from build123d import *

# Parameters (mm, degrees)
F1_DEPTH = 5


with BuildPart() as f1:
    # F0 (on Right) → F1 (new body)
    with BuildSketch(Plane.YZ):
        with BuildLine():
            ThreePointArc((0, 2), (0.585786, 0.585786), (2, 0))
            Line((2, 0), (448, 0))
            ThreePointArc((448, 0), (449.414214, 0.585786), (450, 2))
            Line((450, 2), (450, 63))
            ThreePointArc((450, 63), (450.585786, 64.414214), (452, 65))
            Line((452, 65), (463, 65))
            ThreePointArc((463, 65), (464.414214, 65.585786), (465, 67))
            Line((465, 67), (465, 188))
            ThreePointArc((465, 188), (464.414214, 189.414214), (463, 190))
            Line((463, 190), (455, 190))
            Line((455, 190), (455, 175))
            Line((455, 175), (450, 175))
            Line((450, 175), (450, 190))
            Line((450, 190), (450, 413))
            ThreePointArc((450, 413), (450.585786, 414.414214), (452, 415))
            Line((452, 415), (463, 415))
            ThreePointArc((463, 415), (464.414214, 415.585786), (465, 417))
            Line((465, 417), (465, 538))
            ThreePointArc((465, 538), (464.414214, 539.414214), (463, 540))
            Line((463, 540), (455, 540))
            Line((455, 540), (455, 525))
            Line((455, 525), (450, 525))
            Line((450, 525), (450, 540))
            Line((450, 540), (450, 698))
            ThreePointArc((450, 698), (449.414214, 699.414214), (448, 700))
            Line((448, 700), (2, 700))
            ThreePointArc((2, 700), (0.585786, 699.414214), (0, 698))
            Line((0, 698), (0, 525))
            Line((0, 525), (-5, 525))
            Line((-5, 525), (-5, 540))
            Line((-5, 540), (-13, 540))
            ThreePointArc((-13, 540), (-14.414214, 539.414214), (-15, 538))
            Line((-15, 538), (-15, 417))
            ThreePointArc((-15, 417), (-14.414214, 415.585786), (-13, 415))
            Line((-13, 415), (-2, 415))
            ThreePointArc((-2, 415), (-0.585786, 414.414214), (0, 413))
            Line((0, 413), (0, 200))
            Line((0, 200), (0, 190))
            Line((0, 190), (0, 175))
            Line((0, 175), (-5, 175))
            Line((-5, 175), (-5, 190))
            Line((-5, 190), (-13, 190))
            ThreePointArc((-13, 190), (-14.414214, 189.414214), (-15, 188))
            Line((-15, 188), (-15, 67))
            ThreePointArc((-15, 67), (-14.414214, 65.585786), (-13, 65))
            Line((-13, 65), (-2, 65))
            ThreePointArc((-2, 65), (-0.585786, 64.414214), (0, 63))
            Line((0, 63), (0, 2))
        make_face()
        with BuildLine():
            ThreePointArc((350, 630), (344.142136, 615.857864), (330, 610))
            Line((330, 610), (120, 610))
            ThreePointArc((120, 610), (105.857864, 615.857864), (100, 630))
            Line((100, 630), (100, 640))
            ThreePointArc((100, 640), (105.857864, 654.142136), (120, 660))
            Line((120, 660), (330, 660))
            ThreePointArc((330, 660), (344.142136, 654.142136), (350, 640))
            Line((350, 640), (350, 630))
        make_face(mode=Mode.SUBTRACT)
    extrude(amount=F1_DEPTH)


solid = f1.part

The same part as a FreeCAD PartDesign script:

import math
import FreeCAD as App
import Part
import Sketcher
from FreeCAD import Vector
Q = App.Units.Quantity

doc = App.newDocument("Part")
body = doc.addObject("PartDesign::Body", "Body")

# Sketch on YZ plane
sketch1 = body.newObject("Sketcher::SketchObject", "Sketch")
sketch1.AttachmentSupport = (doc.getObject("YZ_Plane"), [""])
sketch1.MapMode = "FlatFace"
sketch1.addGeometry([
    Part.ArcOfCircle(Part.Circle(Vector(2, 2, 0), Vector(0, 0, 1), 2), math.radians(180), math.radians(270)),  # 0
    Part.LineSegment(Vector(2, 0, 0), Vector(448, 0, 0)),  # 1
    Part.ArcOfCircle(Part.Circle(Vector(448, 2, 0), Vector(0, 0, 1), 2), math.radians(-90), math.radians(0)),  # 2
    Part.LineSegment(Vector(450, 2, 0), Vector(450, 63, 0)),  # 3
    Part.ArcOfCircle(Part.Circle(Vector(452, 63, 0), Vector(0, 0, 1), 2), math.radians(90), math.radians(180)),  # 4
    Part.LineSegment(Vector(452, 65, 0), Vector(463, 65, 0)),  # 5
    Part.ArcOfCircle(Part.Circle(Vector(463, 67, 0), Vector(0, 0, 1), 2), math.radians(-90), math.radians(0)),  # 6
    Part.LineSegment(Vector(465, 67, 0), Vector(465, 188, 0)),  # 7
    Part.ArcOfCircle(Part.Circle(Vector(463, 188, 0), Vector(0, 0, 1), 2), math.radians(0), math.radians(90)),  # 8
    Part.LineSegment(Vector(463, 190, 0), Vector(455, 190, 0)),  # 9
    Part.LineSegment(Vector(455, 190, 0), Vector(455, 175, 0)),  # 10
    Part.LineSegment(Vector(455, 175, 0), Vector(450, 175, 0)),  # 11
    Part.LineSegment(Vector(450, 175, 0), Vector(450, 413, 0)),  # 12
    Part.ArcOfCircle(Part.Circle(Vector(452, 413, 0), Vector(0, 0, 1), 2), math.radians(90), math.radians(180)),  # 13
    Part.LineSegment(Vector(452, 415, 0), Vector(463, 415, 0)),  # 14
    Part.ArcOfCircle(Part.Circle(Vector(463, 417, 0), Vector(0, 0, 1), 2), math.radians(-90), math.radians(0)),  # 15
    Part.LineSegment(Vector(465, 417, 0), Vector(465, 538, 0)),  # 16
    Part.ArcOfCircle(Part.Circle(Vector(463, 538, 0), Vector(0, 0, 1), 2), math.radians(0), math.radians(90)),  # 17
    Part.LineSegment(Vector(463, 540, 0), Vector(455, 540, 0)),  # 18
    Part.LineSegment(Vector(455, 540, 0), Vector(455, 525, 0)),  # 19
    Part.LineSegment(Vector(455, 525, 0), Vector(450, 525, 0)),  # 20
    Part.LineSegment(Vector(450, 525, 0), Vector(450, 698, 0)),  # 21
    Part.ArcOfCircle(Part.Circle(Vector(448, 698, 0), Vector(0, 0, 1), 2), math.radians(0), math.radians(90)),  # 22
    Part.LineSegment(Vector(448, 700, 0), Vector(2, 700, 0)),  # 23
    Part.ArcOfCircle(Part.Circle(Vector(2, 698, 0), Vector(0, 0, 1), 2), math.radians(90), math.radians(180)),  # 24
    Part.LineSegment(Vector(0, 698, 0), Vector(0, 525, 0)),  # 25
    Part.LineSegment(Vector(0, 525, 0), Vector(-5, 525, 0)),  # 26
    Part.LineSegment(Vector(-5, 525, 0), Vector(-5, 540, 0)),  # 27
    Part.LineSegment(Vector(-5, 540, 0), Vector(-13, 540, 0)),  # 28
    Part.ArcOfCircle(Part.Circle(Vector(-13, 538, 0), Vector(0, 0, 1), 2), math.radians(90), math.radians(180)),  # 29
    Part.LineSegment(Vector(-15, 538, 0), Vector(-15, 417, 0)),  # 30
    Part.ArcOfCircle(Part.Circle(Vector(-13, 417, 0), Vector(0, 0, 1), 2), math.radians(180), math.radians(270)),  # 31
    Part.LineSegment(Vector(-13, 415, 0), Vector(-2, 415, 0)),  # 32
    Part.ArcOfCircle(Part.Circle(Vector(-2, 413, 0), Vector(0, 0, 1), 2), math.radians(0), math.radians(90)),  # 33
    Part.LineSegment(Vector(0, 413, 0), Vector(0, 175, 0)),  # 34
    Part.LineSegment(Vector(0, 175, 0), Vector(-5, 175, 0)),  # 35
    Part.LineSegment(Vector(-5, 175, 0), Vector(-5, 190, 0)),  # 36
    Part.LineSegment(Vector(-5, 190, 0), Vector(-13, 190, 0)),  # 37
    Part.ArcOfCircle(Part.Circle(Vector(-13, 188, 0), Vector(0, 0, 1), 2), math.radians(90), math.radians(180)),  # 38
    Part.LineSegment(Vector(-15, 188, 0), Vector(-15, 67, 0)),  # 39
    Part.ArcOfCircle(Part.Circle(Vector(-13, 67, 0), Vector(0, 0, 1), 2), math.radians(180), math.radians(270)),  # 40
    Part.LineSegment(Vector(-13, 65, 0), Vector(-2, 65, 0)),  # 41
    Part.ArcOfCircle(Part.Circle(Vector(-2, 63, 0), Vector(0, 0, 1), 2), math.radians(0), math.radians(90)),  # 42
    Part.LineSegment(Vector(0, 63, 0), Vector(0, 2, 0)),  # 43
    Part.LineSegment(Vector(350, 640, 0), Vector(350, 630, 0)),  # 44
    Part.ArcOfCircle(Part.Circle(Vector(330, 630, 0), Vector(0, 0, 1), 20), math.radians(-90), math.radians(0)),  # 45
    Part.LineSegment(Vector(330, 610, 0), Vector(120, 610, 0)),  # 46
    Part.ArcOfCircle(Part.Circle(Vector(120, 630, 0), Vector(0, 0, 1), 20), math.radians(180), math.radians(270)),  # 47
    Part.LineSegment(Vector(100, 630, 0), Vector(100, 640, 0)),  # 48
    Part.ArcOfCircle(Part.Circle(Vector(120, 640, 0), Vector(0, 0, 1), 20), math.radians(90), math.radians(180)),  # 49
    Part.LineSegment(Vector(120, 660, 0), Vector(330, 660, 0)),  # 50
    Part.ArcOfCircle(Part.Circle(Vector(330, 640, 0), Vector(0, 0, 1), 20), math.radians(0), math.radians(90)),  # 51
], False)
sketch1.addConstraint([
    Sketcher.Constraint("Tangent", 0, 2, 1, 1),
    Sketcher.Constraint("Tangent", 1, 2, 2, 1),
    Sketcher.Constraint("Tangent", 2, 2, 3, 1),
    Sketcher.Constraint("Tangent", 3, 2, 4, 2),
    Sketcher.Constraint("Tangent", 4, 1, 5, 1),
    Sketcher.Constraint("Tangent", 5, 2, 6, 1),
    Sketcher.Constraint("Tangent", 6, 2, 7, 1),
    Sketcher.Constraint("Tangent", 7, 2, 8, 1),
    Sketcher.Constraint("Tangent", 8, 2, 9, 1),
    Sketcher.Constraint("Coincident", 9, 2, 10, 1),
    Sketcher.Constraint("Coincident", 10, 2, 11, 1),
    Sketcher.Constraint("Coincident", 11, 2, 12, 1),
    Sketcher.Constraint("Tangent", 12, 2, 13, 2),
    Sketcher.Constraint("Tangent", 13, 1, 14, 1),
    Sketcher.Constraint("Tangent", 14, 2, 15, 1),
    Sketcher.Constraint("Tangent", 15, 2, 16, 1),
    Sketcher.Constraint("Tangent", 16, 2, 17, 1),
    Sketcher.Constraint("Tangent", 17, 2, 18, 1),
    Sketcher.Constraint("Coincident", 18, 2, 19, 1),
    Sketcher.Constraint("Coincident", 19, 2, 20, 1),
    Sketcher.Constraint("Coincident", 20, 2, 21, 1),
    Sketcher.Constraint("Tangent", 21, 2, 22, 1),
    Sketcher.Constraint("Tangent", 22, 2, 23, 1),
    Sketcher.Constraint("Tangent", 23, 2, 24, 1),
    Sketcher.Constraint("Tangent", 24, 2, 25, 1),
    Sketcher.Constraint("Coincident", 25, 2, 26, 1),
    Sketcher.Constraint("Coincident", 26, 2, 27, 1),
    Sketcher.Constraint("Coincident", 27, 2, 28, 1),
    Sketcher.Constraint("Tangent", 28, 2, 29, 1),
    Sketcher.Constraint("Tangent", 29, 2, 30, 1),
    Sketcher.Constraint("Tangent", 30, 2, 31, 1),
    Sketcher.Constraint("Tangent", 31, 2, 32, 1),
    Sketcher.Constraint("Tangent", 32, 2, 33, 2),
    Sketcher.Constraint("Tangent", 33, 1, 34, 1),
    Sketcher.Constraint("Coincident", 34, 2, 35, 1),
    Sketcher.Constraint("Coincident", 35, 2, 36, 1),
    Sketcher.Constraint("Coincident", 36, 2, 37, 1),
    Sketcher.Constraint("Tangent", 37, 2, 38, 1),
    Sketcher.Constraint("Tangent", 38, 2, 39, 1),
    Sketcher.Constraint("Tangent", 39, 2, 40, 1),
    Sketcher.Constraint("Tangent", 40, 2, 41, 1),
    Sketcher.Constraint("Tangent", 41, 2, 42, 2),
    Sketcher.Constraint("Tangent", 42, 1, 43, 1),
    Sketcher.Constraint("Tangent", 43, 2, 0, 1),
    Sketcher.Constraint("Tangent", 44, 2, 45, 2),
    Sketcher.Constraint("Tangent", 45, 1, 46, 1),
    Sketcher.Constraint("Tangent", 46, 2, 47, 2),
    Sketcher.Constraint("Tangent", 47, 1, 48, 1),
    Sketcher.Constraint("Tangent", 48, 2, 49, 2),
    Sketcher.Constraint("Tangent", 49, 1, 50, 1),
    Sketcher.Constraint("Tangent", 50, 2, 51, 2),
    Sketcher.Constraint("Tangent", 51, 1, 44, 1),
    Sketcher.Constraint("Horizontal", 1),
    Sketcher.Constraint("Vertical", 3),
    Sketcher.Constraint("Horizontal", 5),
    Sketcher.Constraint("Vertical", 7),
    Sketcher.Constraint("Horizontal", 9),
    Sketcher.Constraint("Vertical", 10),
    Sketcher.Constraint("Horizontal", 11),
    Sketcher.Constraint("Vertical", 12),
    Sketcher.Constraint("Horizontal", 14),
    Sketcher.Constraint("Vertical", 16),
    Sketcher.Constraint("Horizontal", 18),
    Sketcher.Constraint("Vertical", 19),
    Sketcher.Constraint("Horizontal", 20),
    Sketcher.Constraint("Vertical", 21),
    Sketcher.Constraint("Horizontal", 23),
    Sketcher.Constraint("Vertical", 25),
    Sketcher.Constraint("Horizontal", 26),
    Sketcher.Constraint("Vertical", 27),
    Sketcher.Constraint("Horizontal", 28),
    Sketcher.Constraint("Vertical", 30),
    Sketcher.Constraint("Horizontal", 32),
    Sketcher.Constraint("Vertical", 34),
    Sketcher.Constraint("Horizontal", 35),
    Sketcher.Constraint("Vertical", 36),
    Sketcher.Constraint("Horizontal", 37),
    Sketcher.Constraint("Vertical", 39),
    Sketcher.Constraint("Horizontal", 41),
    Sketcher.Constraint("Vertical", 43),
    Sketcher.Constraint("Vertical", 44),
    Sketcher.Constraint("Horizontal", 46),
    Sketcher.Constraint("Vertical", 48),
    Sketcher.Constraint("Horizontal", 50),
    Sketcher.Constraint("Equal", 0, 2),
    Sketcher.Constraint("Equal", 2, 4),
    Sketcher.Constraint("Equal", 4, 6),
    Sketcher.Constraint("Equal", 6, 8),
    Sketcher.Constraint("Equal", 8, 13),
    Sketcher.Constraint("Equal", 13, 15),
    Sketcher.Constraint("Equal", 15, 17),
    Sketcher.Constraint("Equal", 17, 22),
    Sketcher.Constraint("Equal", 22, 24),
    Sketcher.Constraint("Equal", 24, 29),
    Sketcher.Constraint("Equal", 29, 31),
    Sketcher.Constraint("Equal", 31, 33),
    Sketcher.Constraint("Equal", 33, 38),
    Sketcher.Constraint("Equal", 38, 40),
    Sketcher.Constraint("Equal", 40, 42),
    Sketcher.Constraint("Equal", 45, 47),
    Sketcher.Constraint("Equal", 47, 49),
    Sketcher.Constraint("Equal", 49, 51),
    Sketcher.Constraint("PointOnObject", 0, 2, -1),
    Sketcher.Constraint("PointOnObject", 24, 2, -2),
    Sketcher.Constraint("PointOnObject", 33, 1, -2),
    Sketcher.Constraint("PointOnObject", 42, 1, -2),
    Sketcher.Constraint("Horizontal", 17, 3, 29, 3),
    Sketcher.Constraint("Horizontal", 15, 3, 31, 3),
    Sketcher.Constraint("Horizontal", 8, 3, 38, 3),
    Sketcher.Constraint("Horizontal", 6, 3, 40, 3),
    Sketcher.Constraint("Horizontal", 20, 2, 25, 2),
    Sketcher.Constraint("Horizontal", 11, 2, 34, 2),
    Sketcher.Constraint("Vertical", 4, 3, 13, 3),
    Sketcher.Constraint("Vertical", 8, 3, 15, 3),
    Sketcher.Constraint("Vertical", 2, 3, 22, 3),
    Sketcher.Constraint("Vertical", 31, 3, 38, 3),
    Sketcher.Constraint("Vertical", 10, 2, 18, 2),
    Sketcher.Constraint("Vertical", 27, 2, 35, 2),
    Sketcher.Constraint("Equal", 20, 26),
    Sketcher.Constraint("Equal", 18, 28),
    Sketcher.Constraint("Equal", 7, 16),
    Sketcher.Constraint("Equal", 10, 19),
    Sketcher.Constraint("Radius", 0, Q("1.999999 mm")),
    Sketcher.Constraint("Radius", 45, Q("19.999999 mm")),
    Sketcher.Constraint("DistanceX", 1, 1, 1, 2, Q("446 mm")),
    Sketcher.Constraint("DistanceX", 5, 1, 5, 2, Q("11 mm")),
    Sketcher.Constraint("DistanceX", 9, 2, 9, 1, Q("8 mm")),
    Sketcher.Constraint("DistanceX", 46, 2, 46, 1, Q("210 mm")),
    Sketcher.Constraint("DistanceY", 3, 1, 3, 2, Q("61 mm")),
    Sketcher.Constraint("DistanceY", 7, 1, 7, 2, Q("121 mm")),
    Sketcher.Constraint("DistanceY", 10, 2, 10, 1, Q("15 mm")),
    Sketcher.Constraint("DistanceY", 12, 1, 12, 2, Q("238 mm")),
    Sketcher.Constraint("DistanceY", 21, 1, 21, 2, Q("173 mm")),
    Sketcher.Constraint("DistanceY", 44, 2, 44, 1, Q("10 mm")),
    Sketcher.Constraint("DistanceX", -1, 1, 45, 3, Q("330.000001 mm")),
    Sketcher.Constraint("DistanceY", -1, 1, 45, 3, Q("629.999999 mm")),
])
pad1 = body.newObject("PartDesign::Pad", "Pad")
pad1.Profile = sketch1
pad1.Length = 5

doc.recompute()
